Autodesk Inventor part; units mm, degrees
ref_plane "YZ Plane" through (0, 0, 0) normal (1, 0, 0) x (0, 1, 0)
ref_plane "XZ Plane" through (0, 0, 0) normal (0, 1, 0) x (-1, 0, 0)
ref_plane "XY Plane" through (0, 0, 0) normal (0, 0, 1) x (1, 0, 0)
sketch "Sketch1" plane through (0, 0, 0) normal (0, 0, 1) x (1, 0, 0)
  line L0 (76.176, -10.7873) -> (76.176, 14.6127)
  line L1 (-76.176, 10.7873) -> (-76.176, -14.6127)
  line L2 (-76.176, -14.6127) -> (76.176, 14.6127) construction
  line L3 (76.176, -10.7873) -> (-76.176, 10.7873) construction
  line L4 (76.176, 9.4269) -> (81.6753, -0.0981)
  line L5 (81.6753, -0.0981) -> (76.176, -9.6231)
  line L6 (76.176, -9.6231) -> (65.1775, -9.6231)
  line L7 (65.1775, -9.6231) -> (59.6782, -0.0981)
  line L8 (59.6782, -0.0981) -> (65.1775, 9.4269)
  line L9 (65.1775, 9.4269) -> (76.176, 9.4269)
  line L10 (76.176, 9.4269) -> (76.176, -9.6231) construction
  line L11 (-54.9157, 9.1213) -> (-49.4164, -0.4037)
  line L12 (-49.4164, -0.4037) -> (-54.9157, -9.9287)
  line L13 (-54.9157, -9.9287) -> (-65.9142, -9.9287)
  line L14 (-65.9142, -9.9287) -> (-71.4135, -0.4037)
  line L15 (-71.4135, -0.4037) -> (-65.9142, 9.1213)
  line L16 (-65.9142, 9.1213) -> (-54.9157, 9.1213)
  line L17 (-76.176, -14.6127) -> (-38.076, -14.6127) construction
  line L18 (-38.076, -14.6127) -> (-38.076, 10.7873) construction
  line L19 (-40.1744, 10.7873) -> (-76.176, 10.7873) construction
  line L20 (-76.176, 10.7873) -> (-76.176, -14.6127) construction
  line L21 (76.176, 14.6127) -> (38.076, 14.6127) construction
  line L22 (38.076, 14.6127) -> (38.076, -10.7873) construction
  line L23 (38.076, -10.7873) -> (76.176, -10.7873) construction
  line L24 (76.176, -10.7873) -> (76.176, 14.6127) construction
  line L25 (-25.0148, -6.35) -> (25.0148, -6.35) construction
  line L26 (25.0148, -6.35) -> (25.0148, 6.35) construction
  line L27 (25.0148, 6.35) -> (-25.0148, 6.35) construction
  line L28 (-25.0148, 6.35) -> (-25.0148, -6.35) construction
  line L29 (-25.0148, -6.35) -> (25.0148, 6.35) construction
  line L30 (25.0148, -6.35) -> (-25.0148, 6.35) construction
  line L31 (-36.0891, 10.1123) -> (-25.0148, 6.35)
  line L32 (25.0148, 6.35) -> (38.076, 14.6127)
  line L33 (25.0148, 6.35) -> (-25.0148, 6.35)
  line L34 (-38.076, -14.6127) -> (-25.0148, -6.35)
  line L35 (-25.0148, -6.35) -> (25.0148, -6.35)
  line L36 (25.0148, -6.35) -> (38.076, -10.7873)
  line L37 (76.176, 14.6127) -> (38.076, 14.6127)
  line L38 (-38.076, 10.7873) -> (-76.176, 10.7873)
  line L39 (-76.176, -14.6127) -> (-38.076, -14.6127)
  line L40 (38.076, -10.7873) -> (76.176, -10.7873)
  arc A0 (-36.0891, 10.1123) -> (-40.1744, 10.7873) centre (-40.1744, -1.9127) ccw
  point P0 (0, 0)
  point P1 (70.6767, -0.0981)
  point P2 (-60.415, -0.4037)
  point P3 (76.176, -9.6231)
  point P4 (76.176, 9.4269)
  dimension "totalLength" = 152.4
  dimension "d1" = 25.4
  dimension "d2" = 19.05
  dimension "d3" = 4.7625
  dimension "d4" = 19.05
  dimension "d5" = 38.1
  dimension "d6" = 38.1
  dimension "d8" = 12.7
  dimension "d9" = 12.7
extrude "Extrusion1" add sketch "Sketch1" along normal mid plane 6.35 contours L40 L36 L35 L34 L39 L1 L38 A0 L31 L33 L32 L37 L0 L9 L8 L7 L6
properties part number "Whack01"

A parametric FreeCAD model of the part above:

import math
import FreeCAD as App
import Part
import Sketcher
Q = App.Units.Quantity


def add_polygon(sketch, points):
    """Adds a closed chain of lines whose ends are joined by coincident constraints."""
    first, n = sketch.GeometryCount, len(points)
    for a, b in zip(points, points[1:] + points[:1]):
        sketch.addGeometry(Part.LineSegment(App.Vector(*a, 0), App.Vector(*b, 0)), False)
    for i in range(n):
        sketch.addConstraint(Sketcher.Constraint("Coincident", first + i, 2, first + (i + 1) % n, 1))

doc = App.newDocument("Part")
body = doc.addObject("PartDesign::Body", "Body")

sketch1 = body.newObject("Sketcher::SketchObject", "Sketch")
sketch1.AttachmentSupport = (doc.getObject("XY_Plane"), [""])
sketch1.MapMode = "FlatFace"
sketch1.addGeometry(Part.LineSegment(App.Vector(38.1, -10.8, 0), App.Vector(76.2, -10.8, 0)), False)
sketch1.addGeometry(Part.LineSegment(App.Vector(76.2, -10.8, 0), App.Vector(76.2, -9.6, 0)), False)
sketch1.addGeometry(Part.LineSegment(App.Vector(76.2, -9.6, 0), App.Vector(65.2, -9.6, 0)), False)
sketch1.addGeometry(Part.LineSegment(App.Vector(65.2, -9.6, 0), App.Vector(59.7, -0.1, 0)), False)
sketch1.addGeometry(Part.LineSegment(App.Vector(59.7, -0.1, 0), App.Vector(65.2, 9.4, 0)), False)
sketch1.addGeometry(Part.LineSegment(App.Vector(65.2, 9.4, 0), App.Vector(76.2, 9.4, 0)), False)
sketch1.addGeometry(Part.LineSegment(App.Vector(76.2, 9.4, 0), App.Vector(76.2, 14.6, 0)), False)
sketch1.addGeometry(Part.LineSegment(App.Vector(76.2, 14.6, 0), App.Vector(38.1, 14.6, 0)), False)
sketch1.addGeometry(Part.LineSegment(App.Vector(38.1, 14.6, 0), App.Vector(25, 6.3, 0)), False)
sketch1.addGeometry(Part.LineSegment(App.Vector(25, 6.3, 0), App.Vector(-25, 6.3, 0)), False)
sketch1.addGeometry(Part.LineSegment(App.Vector(-25, 6.3, 0), App.Vector(-36.1, 10.1, 0)), False)
sketch1.addGeometry(Part.ArcOfCircle(Part.Circle(App.Vector(-40.2, -1.9, 0), App.Vector(0, 0, 1), 12.7), math.radians(71.24), math.radians(90)), False)
sketch1.addGeometry(Part.LineSegment(App.Vector(-40.2, 10.8, 0), App.Vector(-76.2, 10.8, 0)), False)
sketch1.addGeometry(Part.LineSegment(App.Vector(-76.2, 10.8, 0), App.Vector(-76.2, -14.6, 0)), False)
sketch1.addGeometry(Part.LineSegment(App.Vector(-76.2, -14.6, 0), App.Vector(-38.1, -14.6, 0)), False)
sketch1.addGeometry(Part.LineSegment(App.Vector(-38.1, -14.6, 0), App.Vector(-25, -6.3, 0)), False)
sketch1.addGeometry(Part.LineSegment(App.Vector(-25, -6.3, 0), App.Vector(25, -6.3, 0)), False)
sketch1.addGeometry(Part.LineSegment(App.Vector(25, -6.3, 0), App.Vector(38.1, -10.8, 0)), False)
add_polygon(sketch1, [(-65.9, 9.1), (-54.9, 9.1), (-49.4, -0.4), (-54.9, -9.9), (-65.9, -9.9), (-71.4, -0.4)])
sketch1.addConstraint(Sketcher.Constraint("Coincident", 0, 2, 1, 1))
sketch1.addConstraint(Sketcher.Constraint("Coincident", 1, 2, 2, 1))
sketch1.addConstraint(Sketcher.Constraint("Coincident", 2, 2, 3, 1))
sketch1.addConstraint(Sketcher.Constraint("Coincident", 3, 2, 4, 1))
sketch1.addConstraint(Sketcher.Constraint("Coincident", 4, 2, 5, 1))
sketch1.addConstraint(Sketcher.Constraint("Coincident", 5, 2, 6, 1))
sketch1.addConstraint(Sketcher.Constraint("Coincident", 6, 2, 7, 1))
sketch1.addConstraint(Sketcher.Constraint("Coincident", 7, 2, 8, 1))
sketch1.addConstraint(Sketcher.Constraint("Coincident", 8, 2, 9, 1))
sketch1.addConstraint(Sketcher.Constraint("Coincident", 9, 2, 10, 1))
sketch1.addConstraint(Sketcher.Constraint("Tangent", 10, 2, 11, 1))
sketch1.addConstraint(Sketcher.Constraint("Tangent", 11, 2, 12, 1))
sketch1.addConstraint(Sketcher.Constraint("Coincident", 12, 2, 13, 1))
sketch1.addConstraint(Sketcher.Constraint("Coincident", 13, 2, 14, 1))
sketch1.addConstraint(Sketcher.Constraint("Coincident", 14, 2, 15, 1))
sketch1.addConstraint(Sketcher.Constraint("Coincident", 15, 2, 16, 1))
sketch1.addConstraint(Sketcher.Constraint("Coincident", 16, 2, 17, 1))
sketch1.addConstraint(Sketcher.Constraint("Coincident", 17, 2, 0, 1))
sketch1.addConstraint(Sketcher.Constraint("Horizontal", 0))
sketch1.addConstraint(Sketcher.Constraint("Vertical", 1))
sketch1.addConstraint(Sketcher.Constraint("Horizontal", 2))
sketch1.addConstraint(Sketcher.Constraint("Horizontal", 5))
sketch1.addConstraint(Sketcher.Constraint("Vertical", 6))
sketch1.addConstraint(Sketcher.Constraint("Horizontal", 7))
sketch1.addConstraint(Sketcher.Constraint("Horizontal", 9))
sketch1.addConstraint(Sketcher.Constraint("Horizontal", 12))
sketch1.addConstraint(Sketcher.Constraint("Vertical", 13))
sketch1.addConstraint(Sketcher.Constraint("Horizontal", 14))
sketch1.addConstraint(Sketcher.Constraint("Horizontal", 16))
sketch1.addConstraint(Sketcher.Constraint("Horizontal", 18))
sketch1.addConstraint(Sketcher.Constraint("Horizontal", 21))
sketch1.addConstraint(Sketcher.Constraint("Symmetric", 0, 2, 12, 2, -1, 1))
sketch1.addConstraint(Sketcher.Constraint("Symmetric", 6, 2, 13, 2, -1, 1))
sketch1.addConstraint(Sketcher.Constraint("Symmetric", 8, 2, 15, 2, -1, 1))
sketch1.addConstraint(Sketcher.Constraint("Parallel", 8, 15))
sketch1.addConstraint(Sketcher.Constraint("Parallel", 10, 17))
sketch1.addConstraint(Sketcher.Constraint("Parallel", 3, 19))
sketch1.addConstraint(Sketcher.Constraint("Parallel", 4, 20))
sketch1.addConstraint(Sketcher.Constraint("Parallel", 19, 22))
sketch1.addConstraint(Sketcher.Constraint("Parallel", 20, 23))
sketch1.addConstraint(Sketcher.Constraint("Horizontal", 19, 2, 22, 2))
sketch1.addConstraint(Sketcher.Constraint("Vertical", 2, 2, 4, 2))
sketch1.addConstraint(Sketcher.Constraint("Vertical", 9, 2, 15, 2))
sketch1.addConstraint(Sketcher.Constraint("Vertical", 8, 2, 16, 2))
sketch1.addConstraint(Sketcher.Constraint("Vertical", 7, 2, 17, 2))
sketch1.addConstraint(Sketcher.Constraint("Vertical", 18, 2, 20, 2))
sketch1.addConstraint(Sketcher.Constraint("Vertical", 21, 2, 23, 2))
sketch1.addConstraint(Sketcher.Constraint("Equal", 5, 18))
sketch1.addConstraint(Sketcher.Constraint("Equal", 4, 19))
sketch1.addConstraint(Sketcher.Constraint("Radius", 11, Q("0.5 in")))
sketch1.addConstraint(Sketcher.Constraint("DistanceY", 13, 2, 13, 1, Q("1 in")))
sketch1.addConstraint(Sketcher.Constraint("DistanceX", 0, 1, 0, 2, Q("1.5 in")))
sketch1.addConstraint(Sketcher.Constraint("DistanceY", 15, 2, 9, 2, Q("0.5 in")))
sketch1.addConstraint(Sketcher.Constraint("DistanceY", 2, 2, 4, 2, Q("0.75 in")))
sketch1.addConstraint(Sketcher.Constraint("Angle", 3, Q("120.0002 deg")))
sketch1.addConstraint(Sketcher.Constraint("DistanceX", 12, 2, 22, 2, Q("0.1875 in")))
sketch1.addConstraint(Sketcher.Constraint("DistanceX", 2, 2, 2, 1, Q("0.433 in")))
sketch1.addConstraint(Sketcher.Constraint("DistanceX", 10, 2, 9, 2, Q("0.436 in")))
sketch1.addConstraint(Sketcher.Constraint("DistanceX", 9, 2, 9, 1, Q("50.0296 mm")))
sketch1.addConstraint(Sketcher.Constraint("DistanceX", 12, 2, 12, 1, Q("36.0016 mm")))
sketch1.addConstraint(Sketcher.Constraint("DistanceY", 1, 1, 1, 2, Q("1.1642 mm")))
sketch1.addConstraint(Sketcher.Constraint("DistanceY", -1, 1, 18, 2, Q("0.3591 in")))
pad1 = body.newObject("PartDesign::Pad", "Pad")
pad1.Profile = sketch1
pad1.Length = Q("0.25 in")
pad1.Midplane = True

doc.recompute()
